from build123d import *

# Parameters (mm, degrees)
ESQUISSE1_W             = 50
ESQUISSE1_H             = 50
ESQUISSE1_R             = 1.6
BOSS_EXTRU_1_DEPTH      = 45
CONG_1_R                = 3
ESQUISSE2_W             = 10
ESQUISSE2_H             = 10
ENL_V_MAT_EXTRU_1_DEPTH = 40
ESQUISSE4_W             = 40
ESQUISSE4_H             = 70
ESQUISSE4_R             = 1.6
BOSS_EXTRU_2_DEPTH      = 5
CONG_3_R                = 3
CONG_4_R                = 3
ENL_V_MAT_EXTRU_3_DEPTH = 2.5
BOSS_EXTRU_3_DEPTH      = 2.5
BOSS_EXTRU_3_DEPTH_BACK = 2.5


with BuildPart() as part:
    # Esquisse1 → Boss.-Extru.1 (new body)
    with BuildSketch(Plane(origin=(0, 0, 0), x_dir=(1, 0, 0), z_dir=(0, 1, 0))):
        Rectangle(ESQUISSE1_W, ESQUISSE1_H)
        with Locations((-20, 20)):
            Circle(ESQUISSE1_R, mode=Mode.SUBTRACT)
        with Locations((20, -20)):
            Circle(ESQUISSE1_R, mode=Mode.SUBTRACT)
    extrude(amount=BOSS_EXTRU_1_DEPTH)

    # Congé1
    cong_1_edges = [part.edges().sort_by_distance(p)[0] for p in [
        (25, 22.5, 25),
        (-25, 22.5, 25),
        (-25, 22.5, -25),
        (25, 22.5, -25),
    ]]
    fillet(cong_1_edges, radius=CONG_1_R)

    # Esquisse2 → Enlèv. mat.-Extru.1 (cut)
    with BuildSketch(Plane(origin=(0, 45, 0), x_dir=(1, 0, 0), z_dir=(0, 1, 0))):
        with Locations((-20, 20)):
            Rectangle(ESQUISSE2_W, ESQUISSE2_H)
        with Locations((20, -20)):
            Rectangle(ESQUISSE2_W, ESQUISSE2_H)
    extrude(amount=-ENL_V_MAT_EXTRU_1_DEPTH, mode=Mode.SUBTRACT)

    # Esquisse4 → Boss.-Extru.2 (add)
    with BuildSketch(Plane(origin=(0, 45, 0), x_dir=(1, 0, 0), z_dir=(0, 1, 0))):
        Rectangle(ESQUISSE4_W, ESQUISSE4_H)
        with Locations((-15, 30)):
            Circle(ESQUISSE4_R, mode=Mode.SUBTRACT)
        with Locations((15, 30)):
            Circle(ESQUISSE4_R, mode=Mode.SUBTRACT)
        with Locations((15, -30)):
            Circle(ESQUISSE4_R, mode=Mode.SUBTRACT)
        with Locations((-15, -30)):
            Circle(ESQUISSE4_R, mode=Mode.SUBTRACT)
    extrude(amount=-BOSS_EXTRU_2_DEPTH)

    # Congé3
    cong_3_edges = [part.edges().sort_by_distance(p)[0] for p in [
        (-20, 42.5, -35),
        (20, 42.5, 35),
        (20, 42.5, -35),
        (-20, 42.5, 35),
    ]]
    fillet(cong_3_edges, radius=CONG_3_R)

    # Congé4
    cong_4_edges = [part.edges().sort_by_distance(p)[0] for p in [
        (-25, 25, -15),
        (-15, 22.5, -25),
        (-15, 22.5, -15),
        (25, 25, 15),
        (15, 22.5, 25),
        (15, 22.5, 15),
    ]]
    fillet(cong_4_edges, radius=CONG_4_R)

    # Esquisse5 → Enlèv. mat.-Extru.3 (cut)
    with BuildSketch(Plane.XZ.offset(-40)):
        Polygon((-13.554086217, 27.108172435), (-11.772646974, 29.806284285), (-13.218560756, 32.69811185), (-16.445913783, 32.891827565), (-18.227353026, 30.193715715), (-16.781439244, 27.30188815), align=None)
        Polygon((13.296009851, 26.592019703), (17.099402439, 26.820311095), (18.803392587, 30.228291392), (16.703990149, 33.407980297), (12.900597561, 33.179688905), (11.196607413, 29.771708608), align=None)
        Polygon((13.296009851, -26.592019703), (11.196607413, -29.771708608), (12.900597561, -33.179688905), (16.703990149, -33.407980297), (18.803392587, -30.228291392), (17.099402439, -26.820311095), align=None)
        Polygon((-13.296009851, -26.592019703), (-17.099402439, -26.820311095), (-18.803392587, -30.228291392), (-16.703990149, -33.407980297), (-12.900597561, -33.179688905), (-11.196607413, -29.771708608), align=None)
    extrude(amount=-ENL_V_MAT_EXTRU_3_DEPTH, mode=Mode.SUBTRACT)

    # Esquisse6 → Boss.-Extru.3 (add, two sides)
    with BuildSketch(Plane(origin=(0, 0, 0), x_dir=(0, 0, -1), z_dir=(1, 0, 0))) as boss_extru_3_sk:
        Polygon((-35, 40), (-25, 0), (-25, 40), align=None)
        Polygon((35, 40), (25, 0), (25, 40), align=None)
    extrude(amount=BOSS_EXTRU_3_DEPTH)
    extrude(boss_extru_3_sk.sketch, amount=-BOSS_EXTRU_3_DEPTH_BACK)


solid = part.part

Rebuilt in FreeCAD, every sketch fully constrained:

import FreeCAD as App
import Part
import Sketcher
from FreeCAD import Vector
Q = App.Units.Quantity


def edges_at(feature, points):
    """Names of the edges that pass closest to the given points."""
    edges = feature.Shape.Edges
    near = lambda p: min(range(len(edges)), key=lambda i: edges[i].distToShape(Part.Vertex(*p))[0])
    return sorted({f"Edge{near(p) + 1}" for p in points})

doc = App.newDocument("Part")
body = doc.addObject("PartDesign::Body", "Body")

# Sketch on XZ plane
sketch1 = doc.addObject("Sketcher::SketchObject", "Sketch")
body.addObject(sketch1)
sketch1.AttachmentSupport = (doc.XZ_Plane, [""])
sketch1.MapMode = "FlatFace"
sketch1.addGeometry(Part.LineSegment(Vector(-25, -25, 0), Vector(-25, 25, 0)), False)
sketch1.addGeometry(Part.LineSegment(Vector(-25, 25, 0), Vector(25, 25, 0)), False)
sketch1.addGeometry(Part.LineSegment(Vector(25, 25, 0), Vector(25, -25, 0)), False)
sketch1.addGeometry(Part.LineSegment(Vector(25, -25, 0), Vector(-25, -25, 0)), False)
sketch1.addGeometry(Part.Circle(Vector(20, 20, 0), Vector(0, 0, 1), 1.6), False)
sketch1.addGeometry(Part.Circle(Vector(-20, -20, 0), Vector(0, 0, 1), 1.6), False)
sketch1.addConstraint(Sketcher.Constraint("Coincident", 0, 2, 1, 1))
sketch1.addConstraint(Sketcher.Constraint("Coincident", 1, 2, 2, 1))
sketch1.addConstraint(Sketcher.Constraint("Coincident", 2, 2, 3, 1))
sketch1.addConstraint(Sketcher.Constraint("Coincident", 3, 2, 0, 1))
sketch1.addConstraint(Sketcher.Constraint("Vertical", 0))
sketch1.addConstraint(Sketcher.Constraint("Horizontal", 1))
sketch1.addConstraint(Sketcher.Constraint("Vertical", 2))
sketch1.addConstraint(Sketcher.Constraint("Horizontal", 3))
sketch1.addConstraint(Sketcher.Constraint("Equal", 4, 5))
sketch1.addConstraint(Sketcher.Constraint("Symmetric", 4, 3, 5, 3, -1, 1))
sketch1.addConstraint(Sketcher.Constraint("Symmetric", 0, 2, 2, 2, -1, 1))
sketch1.addConstraint(Sketcher.Constraint("Equal", 3, 0))
sketch1.addConstraint(Sketcher.Constraint("Diameter", 4, Q("3.2 mm")))
sketch1.addConstraint(Sketcher.Constraint("DistanceX", 1, 1, 1, 2, Q("50 mm")))
sketch1.addConstraint(Sketcher.Constraint("DistanceX", -1, 1, 4, 3, Q("20 mm")))
sketch1.addConstraint(Sketcher.Constraint("DistanceY", -1, 1, 4, 3, Q("20 mm")))
pad1 = doc.addObject("PartDesign::Pad", "Pad")
body.addObject(pad1)
pad1.Profile = sketch1
pad1.Length = 45
pad1.Reversed = True
doc.recompute()

fillet = doc.addObject("PartDesign::Fillet", "Fillet")
body.addObject(fillet)
fillet.Base = (pad1, edges_at(pad1, [
    (25, 22.5, 25),
    (-25, 22.5, 25),
    (-25, 22.5, -25),
    (25, 22.5, -25),
]))
fillet.Radius = 3

# Sketch on XZ plane
sketch2 = doc.addObject("Sketcher::SketchObject", "Sketch001")
body.addObject(sketch2)
sketch2.AttachmentSupport = (doc.XZ_Plane, [""])
sketch2.MapMode = "FlatFace"
sketch2.AttachmentOffset = App.Placement(Vector(0, 0, -45), App.Rotation())
sketch2.addGeometry(Part.LineSegment(Vector(-25, -25, 0), Vector(-25, -15, 0)), False)
sketch2.addGeometry(Part.LineSegment(Vector(-25, -15, 0), Vector(-15, -15, 0)), False)
sketch2.addGeometry(Part.LineSegment(Vector(-15, -15, 0), Vector(-15, -25, 0)), False)
sketch2.addGeometry(Part.LineSegment(Vector(-15, -25, 0), Vector(-25, -25, 0)), False)
sketch2.addGeometry(Part.LineSegment(Vector(15, 15, 0), Vector(15, 25, 0)), False)
sketch2.addGeometry(Part.LineSegment(Vector(15, 25, 0), Vector(25, 25, 0)), False)
sketch2.addGeometry(Part.LineSegment(Vector(25, 25, 0), Vector(25, 15, 0)), False)
sketch2.addGeometry(Part.LineSegment(Vector(25, 15, 0), Vector(15, 15, 0)), False)
sketch2.addConstraint(Sketcher.Constraint("Coincident", 0, 2, 1, 1))
sketch2.addConstraint(Sketcher.Constraint("Coincident", 1, 2, 2, 1))
sketch2.addConstraint(Sketcher.Constraint("Coincident", 2, 2, 3, 1))
sketch2.addConstraint(Sketcher.Constraint("Coincident", 3, 2, 0, 1))
sketch2.addConstraint(Sketcher.Constraint("Coincident", 4, 2, 5, 1))
sketch2.addConstraint(Sketcher.Constraint("Coincident", 5, 2, 6, 1))
sketch2.addConstraint(Sketcher.Constraint("Coincident", 6, 2, 7, 1))
sketch2.addConstraint(Sketcher.Constraint("Coincident", 7, 2, 4, 1))
sketch2.addConstraint(Sketcher.Constraint("Vertical", 0))
sketch2.addConstraint(Sketcher.Constraint("Horizontal", 1))
sketch2.addConstraint(Sketcher.Constraint("Vertical", 2))
sketch2.addConstraint(Sketcher.Constraint("Horizontal", 3))
sketch2.addConstraint(Sketcher.Constraint("Vertical", 4))
sketch2.addConstraint(Sketcher.Constraint("Horizontal", 5))
sketch2.addConstraint(Sketcher.Constraint("Vertical", 6))
sketch2.addConstraint(Sketcher.Constraint("Horizontal", 7))
sketch2.addConstraint(Sketcher.Constraint("Symmetric", 2, 2, 4, 2, -1, 1))
sketch2.addConstraint(Sketcher.Constraint("Symmetric", 0, 2, 6, 2, -1, 1))
sketch2.addConstraint(Sketcher.Constraint("Equal", 7, 0))
sketch2.addConstraint(Sketcher.Constraint("DistanceX", 1, 1, 1, 2, Q("10 mm")))
sketch2.addConstraint(Sketcher.Constraint("DistanceX", 0, 2, -1, 1, Q("25 mm")))
sketch2.addConstraint(Sketcher.Constraint("DistanceY", 0, 2, -1, 1, Q("15 mm")))
pocket1 = doc.addObject("PartDesign::Pocket", "Pocket")
body.addObject(pocket1)
pocket1.Profile = sketch2
pocket1.Length = 40
pocket1.Reversed = True

# Sketch on XZ plane
sketch3 = doc.addObject("Sketcher::SketchObject", "Sketch002")
body.addObject(sketch3)
sketch3.AttachmentSupport = (doc.XZ_Plane, [""])
sketch3.MapMode = "FlatFace"
sketch3.AttachmentOffset = App.Placement(Vector(0, 0, -45), App.Rotation())
sketch3.addGeometry(Part.LineSegment(Vector(-20, -35, 0), Vector(-20, 35, 0)), False)
sketch3.addGeometry(Part.LineSegment(Vector(-20, 35, 0), Vector(20, 35, 0)), False)
sketch3.addGeometry(Part.LineSegment(Vector(20, 35, 0), Vector(20, -35, 0)), False)
sketch3.addGeometry(Part.LineSegment(Vector(20, -35, 0), Vector(-20, -35, 0)), False)
sketch3.addGeometry(Part.Circle(Vector(-15, 30, 0), Vector(0, 0, 1), 1.6), False)
sketch3.addGeometry(Part.Circle(Vector(15, 30, 0), Vector(0, 0, 1), 1.6), False)
sketch3.addGeometry(Part.Circle(Vector(-15, -30, 0), Vector(0, 0, 1), 1.6), False)
sketch3.addGeometry(Part.Circle(Vector(15, -30, 0), Vector(0, 0, 1), 1.6), False)
sketch3.addConstraint(Sketcher.Constraint("Coincident", 0, 2, 1, 1))
sketch3.addConstraint(Sketcher.Constraint("Coincident", 1, 2, 2, 1))
sketch3.addConstraint(Sketcher.Constraint("Coincident", 2, 2, 3, 1))
sketch3.addConstraint(Sketcher.Constraint("Coincident", 3, 2, 0, 1))
sketch3.addConstraint(Sketcher.Constraint("Vertical", 0))
sketch3.addConstraint(Sketcher.Constraint("Horizontal", 1))
sketch3.addConstraint(Sketcher.Constraint("Vertical", 2))
sketch3.addConstraint(Sketcher.Constraint("Horizontal", 3))
sketch3.addConstraint(Sketcher.Constraint("Equal", 4, 5))
sketch3.addConstraint(Sketcher.Constraint("Equal", 5, 6))
sketch3.addConstraint(Sketcher.Constraint("Equal", 6, 7))
sketch3.addConstraint(Sketcher.Constraint("Symmetric", 5, 3, 6, 3, -1, 1))
sketch3.addConstraint(Sketcher.Constraint("Symmetric", 4, 3, 7, 3, -1, 1))
sketch3.addConstraint(Sketcher.Constraint("Symmetric", 0, 2, 2, 2, -1, 1))
sketch3.addConstraint(Sketcher.Constraint("Symmetric", 4, 3, 5, 3, -2))
sketch3.addConstraint(Sketcher.Constraint("Diameter", 4, Q("3.2 mm")))
sketch3.addConstraint(Sketcher.Constraint("DistanceX", 1, 1, 1, 2, Q("40 mm")))
sketch3.addConstraint(Sketcher.Constraint("DistanceY", 0, 1, 0, 2, Q("70 mm")))
sketch3.addConstraint(Sketcher.Constraint("DistanceX", 4, 3, -1, 1, Q("15 mm")))
sketch3.addConstraint(Sketcher.Constraint("DistanceY", -1, 1, 4, 3, Q("30 mm")))
pad2 = doc.addObject("PartDesign::Pad", "Pad001")
body.addObject(pad2)
pad2.Profile = sketch3
pad2.Length = 5
doc.recompute()

fillet2 = doc.addObject("PartDesign::Fillet", "Fillet001")
body.addObject(fillet2)
fillet2.Base = (pad2, edges_at(pad2, [
    (-20, 42.5, -35),
    (20, 42.5, 35),
    (20, 42.5, -35),
    (-20, 42.5, 35),
]))
fillet2.Radius = 3
doc.recompute()

fillet3 = doc.addObject("PartDesign::Fillet", "Fillet002")
body.addObject(fillet3)
fillet3.Base = (fillet2, edges_at(fillet2, [
    (-25, 25, -15),
    (-15, 22.5, -25),
    (-15, 22.5, -15),
    (25, 25, 15),
    (15, 22.5, 25),
    (15, 22.5, 15),
]))
fillet3.Radius = 3

# Sketch on XZ plane
sketch4 = doc.addObject("Sketcher::SketchObject", "Sketch003")
body.addObject(sketch4)
sketch4.AttachmentSupport = (doc.XZ_Plane, [""])
sketch4.MapMode = "FlatFace"
sketch4.AttachmentOffset = App.Placement(Vector(0, 0, -40), App.Rotation())
sketch4.addGeometry(Part.LineSegment(Vector(-13.6, 27.1, 0), Vector(-11.8, 29.8, 0)), False)
sketch4.addGeometry(Part.LineSegment(Vector(-11.8, 29.8, 0), Vector(-13.2, 32.7, 0)), False)
sketch4.addGeometry(Part.LineSegment(Vector(-13.2, 32.7, 0), Vector(-16.4, 32.9, 0)), False)
sketch4.addGeometry(Part.LineSegment(Vector(-16.4, 32.9, 0), Vector(-18.2, 30.2, 0)), False)
sketch4.addGeometry(Part.LineSegment(Vector(-18.2, 30.2, 0), Vector(-16.8, 27.3, 0)), False)
sketch4.addGeometry(Part.LineSegment(Vector(-16.8, 27.3, 0), Vector(-13.6, 27.1, 0)), False)
sketch4.addGeometry(Part.LineSegment(Vector(13.3, 26.6, 0), Vector(17.1, 26.8, 0)), False)
sketch4.addGeometry(Part.LineSegment(Vector(17.1, 26.8, 0), Vector(18.8, 30.2, 0)), False)
sketch4.addGeometry(Part.LineSegment(Vector(18.8, 30.2, 0), Vector(16.7, 33.4, 0)), False)
sketch4.addGeometry(Part.LineSegment(Vector(16.7, 33.4, 0), Vector(12.9, 33.2, 0)), False)
sketch4.addGeometry(Part.LineSegment(Vector(12.9, 33.2, 0), Vector(11.2, 29.8, 0)), False)
sketch4.addGeometry(Part.LineSegment(Vector(11.2, 29.8, 0), Vector(13.3, 26.6, 0)), False)
sketch4.addGeometry(Part.LineSegment(Vector(13.3, -26.6, 0), Vector(11.2, -29.8, 0)), False)
sketch4.addGeometry(Part.LineSegment(Vector(11.2, -29.8, 0), Vector(12.9, -33.2, 0)), False)
sketch4.addGeometry(Part.LineSegment(Vector(12.9, -33.2, 0), Vector(16.7, -33.4, 0)), False)
sketch4.addGeometry(Part.LineSegment(Vector(16.7, -33.4, 0), Vector(18.8, -30.2, 0)), False)
sketch4.addGeometry(Part.LineSegment(Vector(18.8, -30.2, 0), Vector(17.1, -26.8, 0)), False)
sketch4.addGeometry(Part.LineSegment(Vector(17.1, -26.8, 0), Vector(13.3, -26.6, 0)), False)
sketch4.addGeometry(Part.LineSegment(Vector(-13.3, -26.6, 0), Vector(-17.1, -26.8, 0)), False)
sketch4.addGeometry(Part.LineSegment(Vector(-17.1, -26.8, 0), Vector(-18.8, -30.2, 0)), False)
sketch4.addGeometry(Part.LineSegment(Vector(-18.8, -30.2, 0), Vector(-16.7, -33.4, 0)), False)
sketch4.addGeometry(Part.LineSegment(Vector(-16.7, -33.4, 0), Vector(-12.9, -33.2, 0)), False)
sketch4.addGeometry(Part.LineSegment(Vector(-12.9, -33.2, 0), Vector(-11.2, -29.8, 0)), False)
sketch4.addGeometry(Part.LineSegment(Vector(-11.2, -29.8, 0), Vector(-13.3, -26.6, 0)), False)
sketch4.addConstraint(Sketcher.Constraint("Coincident", 0, 2, 1, 1))
sketch4.addConstraint(Sketcher.Constraint("Coincident", 1, 2, 2, 1))
sketch4.addConstraint(Sketcher.Constraint("Coincident", 2, 2, 3, 1))
sketch4.addConstraint(Sketcher.Constraint("Coincident", 3, 2, 4, 1))
sketch4.addConstraint(Sketcher.Constraint("Coincident", 4, 2, 5, 1))
sketch4.addConstraint(Sketcher.Constraint("Coincident", 5, 2, 0, 1))
sketch4.addConstraint(Sketcher.Constraint("Coincident", 6, 2, 7, 1))
sketch4.addConstraint(Sketcher.Constraint("Coincident", 7, 2, 8, 1))
sketch4.addConstraint(Sketcher.Constraint("Coincident", 8, 2, 9, 1))
sketch4.addConstraint(Sketcher.Constraint("Coincident", 9, 2, 10, 1))
sketch4.addConstraint(Sketcher.Constraint("Coincident", 10, 2, 11, 1))
sketch4.addConstraint(Sketcher.Constraint("Coincident", 11, 2, 6, 1))
sketch4.addConstraint(Sketcher.Constraint("Coincident", 12, 2, 13, 1))
sketch4.addConstraint(Sketcher.Constraint("Coincident", 13, 2, 14, 1))
sketch4.addConstraint(Sketcher.Constraint("Coincident", 14, 2, 15, 1))
sketch4.addConstraint(Sketcher.Constraint("Coincident", 15, 2, 16, 1))
sketch4.addConstraint(Sketcher.Constraint("Coincident", 16, 2, 17, 1))
sketch4.addConstraint(Sketcher.Constraint("Coincident", 17, 2, 12, 1))
sketch4.addConstraint(Sketcher.Constraint("Coincident", 18, 2, 19, 1))
sketch4.addConstraint(Sketcher.Constraint("Coincident", 19, 2, 20, 1))
sketch4.addConstraint(Sketcher.Constraint("Coincident", 20, 2, 21, 1))
sketch4.addConstraint(Sketcher.Constraint("Coincident", 21, 2, 22, 1))
sketch4.addConstraint(Sketcher.Constraint("Coincident", 22, 2, 23, 1))
sketch4.addConstraint(Sketcher.Constraint("Coincident", 23, 2, 18, 1))
sketch4.addConstraint(Sketcher.Constraint("Symmetric", 6, 2, 18, 2, -1, 1))
sketch4.addConstraint(Sketcher.Constraint("Symmetric", 7, 2, 19, 2, -1, 1))
sketch4.addConstraint(Sketcher.Constraint("Symmetric", 8, 2, 20, 2, -1, 1))
sketch4.addConstraint(Sketcher.Constraint("Symmetric", 9, 2, 21, 2, -1, 1))
sketch4.addConstraint(Sketcher.Constraint("Symmetric", 10, 2, 22, 2, -1, 1))
sketch4.addConstraint(Sketcher.Constraint("Symmetric", 11, 2, 23, 2, -1, 1))
sketch4.addConstraint(Sketcher.Constraint("Symmetric", 16, 2, 18, 2, -2))
sketch4.addConstraint(Sketcher.Constraint("Symmetric", 15, 2, 19, 2, -2))
sketch4.addConstraint(Sketcher.Constraint("Symmetric", 14, 2, 20, 2, -2))
sketch4.addConstraint(Sketcher.Constraint("Symmetric", 13, 2, 21, 2, -2))
sketch4.addConstraint(Sketcher.Constraint("Symmetric", 12, 2, 22, 2, -2))
sketch4.addConstraint(Sketcher.Constraint("Symmetric", 17, 2, 23, 2, -2))
sketch4.addConstraint(Sketcher.Constraint("Parallel", 0, 3))
sketch4.addConstraint(Sketcher.Constraint("Parallel", 1, 4))
sketch4.addConstraint(Sketcher.Constraint("Parallel", 2, 5))
sketch4.addConstraint(Sketcher.Constraint("Parallel", 6, 9))
sketch4.addConstraint(Sketcher.Constraint("Parallel", 7, 10))
sketch4.addConstraint(Sketcher.Constraint("Parallel", 8, 11))
sketch4.addConstraint(Sketcher.Constraint("Parallel", 3, 12))
sketch4.addConstraint(Sketcher.Constraint("Parallel", 4, 13))
sketch4.addConstraint(Sketcher.Constraint("Parallel", 5, 14))
sketch4.addConstraint(Sketcher.Constraint("Equal", 0, 1))
sketch4.addConstraint(Sketcher.Constraint("Equal", 1, 2))
sketch4.addConstraint(Sketcher.Constraint("Equal", 2, 3))
sketch4.addConstraint(Sketcher.Constraint("Equal", 6, 7))
sketch4.addConstraint(Sketcher.Constraint("Equal", 7, 8))
sketch4.addConstraint(Sketcher.Constraint("Equal", 8, 9))
sketch4.addConstraint(Sketcher.Constraint("DistanceY", 12, 2, 7, 2, Q("60 mm")))
sketch4.addConstraint(Sketcher.Constraint("DistanceX", 18, 2, 13, 2, Q("30 mm")))
sketch4.addConstraint(Sketcher.Constraint("DistanceY", 6, 2, 1, 2, Q("5.877801 mm")))
sketch4.addConstraint(Sketcher.Constraint("Distance", 0, Q("3.233162 mm")))
sketch4.addConstraint(Sketcher.Constraint("DistanceX", 1, 2, -1, 1, Q("13.218561 mm")))
sketch4.addConstraint(Sketcher.Constraint("DistanceY", -1, 1, 1, 2, Q("32.698112 mm")))
sketch4.addConstraint(Sketcher.Constraint("DistanceX", 4, 2, -1, 1, Q("16.781439 mm")))
sketch4.addConstraint(Sketcher.Constraint("DistanceY", -1, 1, 4, 2, Q("27.301888 mm")))
sketch4.addConstraint(Sketcher.Constraint("DistanceY", -1, 1, 7, 2, Q("30.228291 mm")))
pocket2 = doc.addObject("PartDesign::Pocket", "Pocket001")
body.addObject(pocket2)
pocket2.Profile = sketch4
pocket2.Length = 2.5

# Sketch on YZ plane
sketch5 = doc.addObject("Sketcher::SketchObject", "Sketch004")
body.addObject(sketch5)
sketch5.AttachmentSupport = (doc.YZ_Plane, [""])
sketch5.MapMode = "FlatFace"
sketch5.addGeometry(Part.LineSegment(Vector(40, 35, 0), Vector(0, 25, 0)), False)
sketch5.addGeometry(Part.LineSegment(Vector(0, 25, 0), Vector(40, 25, 0)), False)
sketch5.addGeometry(Part.LineSegment(Vector(40, 25, 0), Vector(40, 35, 0)), False)
sketch5.addGeometry(Part.LineSegment(Vector(0, -25, 0), Vector(40, -35, 0)), False)
sketch5.addGeometry(Part.LineSegment(Vector(40, -35, 0), Vector(40, -25, 0)), False)
sketch5.addGeometry(Part.LineSegment(Vector(40, -25, 0), Vector(0, -25, 0)), False)
sketch5.addConstraint(Sketcher.Constraint("Coincident", 0, 2, 1, 1))
sketch5.addConstraint(Sketcher.Constraint("Coincident", 1, 2, 2, 1))
sketch5.addConstraint(Sketcher.Constraint("Coincident", 2, 2, 0, 1))
sketch5.addConstraint(Sketcher.Constraint("Coincident", 3, 2, 4, 1))
sketch5.addConstraint(Sketcher.Constraint("Coincident", 4, 2, 5, 1))
sketch5.addConstraint(Sketcher.Constraint("Coincident", 5, 2, 3, 1))
sketch5.addConstraint(Sketcher.Constraint("Horizontal", 1))
sketch5.addConstraint(Sketcher.Constraint("Vertical", 2))
sketch5.addConstraint(Sketcher.Constraint("Vertical", 4))
sketch5.addConstraint(Sketcher.Constraint("Horizontal", 5))
sketch5.addConstraint(Sketcher.Constraint("Symmetric", 0, 2, 5, 2, -1, 1))
sketch5.addConstraint(Sketcher.Constraint("Symmetric", 2, 2, 3, 2, -1))
sketch5.addConstraint(Sketcher.Constraint("PointOnObject", 0, 2, -2))
sketch5.addConstraint(Sketcher.Constraint("DistanceX", 1, 1, 1, 2, Q("40 mm")))
sketch5.addConstraint(Sketcher.Constraint("DistanceY", 2, 1, 2, 2, Q("10 mm")))
sketch5.addConstraint(Sketcher.Constraint("DistanceY", -1, 1, 0, 2, Q("25 mm")))
pad3 = doc.addObject("PartDesign::Pad", "Pad002")
body.addObject(pad3)
pad3.Profile = sketch5
pad3.Type = "TwoLengths"
pad3.Length = 2.5
pad3.Length2 = 2.5

doc.recompute()
